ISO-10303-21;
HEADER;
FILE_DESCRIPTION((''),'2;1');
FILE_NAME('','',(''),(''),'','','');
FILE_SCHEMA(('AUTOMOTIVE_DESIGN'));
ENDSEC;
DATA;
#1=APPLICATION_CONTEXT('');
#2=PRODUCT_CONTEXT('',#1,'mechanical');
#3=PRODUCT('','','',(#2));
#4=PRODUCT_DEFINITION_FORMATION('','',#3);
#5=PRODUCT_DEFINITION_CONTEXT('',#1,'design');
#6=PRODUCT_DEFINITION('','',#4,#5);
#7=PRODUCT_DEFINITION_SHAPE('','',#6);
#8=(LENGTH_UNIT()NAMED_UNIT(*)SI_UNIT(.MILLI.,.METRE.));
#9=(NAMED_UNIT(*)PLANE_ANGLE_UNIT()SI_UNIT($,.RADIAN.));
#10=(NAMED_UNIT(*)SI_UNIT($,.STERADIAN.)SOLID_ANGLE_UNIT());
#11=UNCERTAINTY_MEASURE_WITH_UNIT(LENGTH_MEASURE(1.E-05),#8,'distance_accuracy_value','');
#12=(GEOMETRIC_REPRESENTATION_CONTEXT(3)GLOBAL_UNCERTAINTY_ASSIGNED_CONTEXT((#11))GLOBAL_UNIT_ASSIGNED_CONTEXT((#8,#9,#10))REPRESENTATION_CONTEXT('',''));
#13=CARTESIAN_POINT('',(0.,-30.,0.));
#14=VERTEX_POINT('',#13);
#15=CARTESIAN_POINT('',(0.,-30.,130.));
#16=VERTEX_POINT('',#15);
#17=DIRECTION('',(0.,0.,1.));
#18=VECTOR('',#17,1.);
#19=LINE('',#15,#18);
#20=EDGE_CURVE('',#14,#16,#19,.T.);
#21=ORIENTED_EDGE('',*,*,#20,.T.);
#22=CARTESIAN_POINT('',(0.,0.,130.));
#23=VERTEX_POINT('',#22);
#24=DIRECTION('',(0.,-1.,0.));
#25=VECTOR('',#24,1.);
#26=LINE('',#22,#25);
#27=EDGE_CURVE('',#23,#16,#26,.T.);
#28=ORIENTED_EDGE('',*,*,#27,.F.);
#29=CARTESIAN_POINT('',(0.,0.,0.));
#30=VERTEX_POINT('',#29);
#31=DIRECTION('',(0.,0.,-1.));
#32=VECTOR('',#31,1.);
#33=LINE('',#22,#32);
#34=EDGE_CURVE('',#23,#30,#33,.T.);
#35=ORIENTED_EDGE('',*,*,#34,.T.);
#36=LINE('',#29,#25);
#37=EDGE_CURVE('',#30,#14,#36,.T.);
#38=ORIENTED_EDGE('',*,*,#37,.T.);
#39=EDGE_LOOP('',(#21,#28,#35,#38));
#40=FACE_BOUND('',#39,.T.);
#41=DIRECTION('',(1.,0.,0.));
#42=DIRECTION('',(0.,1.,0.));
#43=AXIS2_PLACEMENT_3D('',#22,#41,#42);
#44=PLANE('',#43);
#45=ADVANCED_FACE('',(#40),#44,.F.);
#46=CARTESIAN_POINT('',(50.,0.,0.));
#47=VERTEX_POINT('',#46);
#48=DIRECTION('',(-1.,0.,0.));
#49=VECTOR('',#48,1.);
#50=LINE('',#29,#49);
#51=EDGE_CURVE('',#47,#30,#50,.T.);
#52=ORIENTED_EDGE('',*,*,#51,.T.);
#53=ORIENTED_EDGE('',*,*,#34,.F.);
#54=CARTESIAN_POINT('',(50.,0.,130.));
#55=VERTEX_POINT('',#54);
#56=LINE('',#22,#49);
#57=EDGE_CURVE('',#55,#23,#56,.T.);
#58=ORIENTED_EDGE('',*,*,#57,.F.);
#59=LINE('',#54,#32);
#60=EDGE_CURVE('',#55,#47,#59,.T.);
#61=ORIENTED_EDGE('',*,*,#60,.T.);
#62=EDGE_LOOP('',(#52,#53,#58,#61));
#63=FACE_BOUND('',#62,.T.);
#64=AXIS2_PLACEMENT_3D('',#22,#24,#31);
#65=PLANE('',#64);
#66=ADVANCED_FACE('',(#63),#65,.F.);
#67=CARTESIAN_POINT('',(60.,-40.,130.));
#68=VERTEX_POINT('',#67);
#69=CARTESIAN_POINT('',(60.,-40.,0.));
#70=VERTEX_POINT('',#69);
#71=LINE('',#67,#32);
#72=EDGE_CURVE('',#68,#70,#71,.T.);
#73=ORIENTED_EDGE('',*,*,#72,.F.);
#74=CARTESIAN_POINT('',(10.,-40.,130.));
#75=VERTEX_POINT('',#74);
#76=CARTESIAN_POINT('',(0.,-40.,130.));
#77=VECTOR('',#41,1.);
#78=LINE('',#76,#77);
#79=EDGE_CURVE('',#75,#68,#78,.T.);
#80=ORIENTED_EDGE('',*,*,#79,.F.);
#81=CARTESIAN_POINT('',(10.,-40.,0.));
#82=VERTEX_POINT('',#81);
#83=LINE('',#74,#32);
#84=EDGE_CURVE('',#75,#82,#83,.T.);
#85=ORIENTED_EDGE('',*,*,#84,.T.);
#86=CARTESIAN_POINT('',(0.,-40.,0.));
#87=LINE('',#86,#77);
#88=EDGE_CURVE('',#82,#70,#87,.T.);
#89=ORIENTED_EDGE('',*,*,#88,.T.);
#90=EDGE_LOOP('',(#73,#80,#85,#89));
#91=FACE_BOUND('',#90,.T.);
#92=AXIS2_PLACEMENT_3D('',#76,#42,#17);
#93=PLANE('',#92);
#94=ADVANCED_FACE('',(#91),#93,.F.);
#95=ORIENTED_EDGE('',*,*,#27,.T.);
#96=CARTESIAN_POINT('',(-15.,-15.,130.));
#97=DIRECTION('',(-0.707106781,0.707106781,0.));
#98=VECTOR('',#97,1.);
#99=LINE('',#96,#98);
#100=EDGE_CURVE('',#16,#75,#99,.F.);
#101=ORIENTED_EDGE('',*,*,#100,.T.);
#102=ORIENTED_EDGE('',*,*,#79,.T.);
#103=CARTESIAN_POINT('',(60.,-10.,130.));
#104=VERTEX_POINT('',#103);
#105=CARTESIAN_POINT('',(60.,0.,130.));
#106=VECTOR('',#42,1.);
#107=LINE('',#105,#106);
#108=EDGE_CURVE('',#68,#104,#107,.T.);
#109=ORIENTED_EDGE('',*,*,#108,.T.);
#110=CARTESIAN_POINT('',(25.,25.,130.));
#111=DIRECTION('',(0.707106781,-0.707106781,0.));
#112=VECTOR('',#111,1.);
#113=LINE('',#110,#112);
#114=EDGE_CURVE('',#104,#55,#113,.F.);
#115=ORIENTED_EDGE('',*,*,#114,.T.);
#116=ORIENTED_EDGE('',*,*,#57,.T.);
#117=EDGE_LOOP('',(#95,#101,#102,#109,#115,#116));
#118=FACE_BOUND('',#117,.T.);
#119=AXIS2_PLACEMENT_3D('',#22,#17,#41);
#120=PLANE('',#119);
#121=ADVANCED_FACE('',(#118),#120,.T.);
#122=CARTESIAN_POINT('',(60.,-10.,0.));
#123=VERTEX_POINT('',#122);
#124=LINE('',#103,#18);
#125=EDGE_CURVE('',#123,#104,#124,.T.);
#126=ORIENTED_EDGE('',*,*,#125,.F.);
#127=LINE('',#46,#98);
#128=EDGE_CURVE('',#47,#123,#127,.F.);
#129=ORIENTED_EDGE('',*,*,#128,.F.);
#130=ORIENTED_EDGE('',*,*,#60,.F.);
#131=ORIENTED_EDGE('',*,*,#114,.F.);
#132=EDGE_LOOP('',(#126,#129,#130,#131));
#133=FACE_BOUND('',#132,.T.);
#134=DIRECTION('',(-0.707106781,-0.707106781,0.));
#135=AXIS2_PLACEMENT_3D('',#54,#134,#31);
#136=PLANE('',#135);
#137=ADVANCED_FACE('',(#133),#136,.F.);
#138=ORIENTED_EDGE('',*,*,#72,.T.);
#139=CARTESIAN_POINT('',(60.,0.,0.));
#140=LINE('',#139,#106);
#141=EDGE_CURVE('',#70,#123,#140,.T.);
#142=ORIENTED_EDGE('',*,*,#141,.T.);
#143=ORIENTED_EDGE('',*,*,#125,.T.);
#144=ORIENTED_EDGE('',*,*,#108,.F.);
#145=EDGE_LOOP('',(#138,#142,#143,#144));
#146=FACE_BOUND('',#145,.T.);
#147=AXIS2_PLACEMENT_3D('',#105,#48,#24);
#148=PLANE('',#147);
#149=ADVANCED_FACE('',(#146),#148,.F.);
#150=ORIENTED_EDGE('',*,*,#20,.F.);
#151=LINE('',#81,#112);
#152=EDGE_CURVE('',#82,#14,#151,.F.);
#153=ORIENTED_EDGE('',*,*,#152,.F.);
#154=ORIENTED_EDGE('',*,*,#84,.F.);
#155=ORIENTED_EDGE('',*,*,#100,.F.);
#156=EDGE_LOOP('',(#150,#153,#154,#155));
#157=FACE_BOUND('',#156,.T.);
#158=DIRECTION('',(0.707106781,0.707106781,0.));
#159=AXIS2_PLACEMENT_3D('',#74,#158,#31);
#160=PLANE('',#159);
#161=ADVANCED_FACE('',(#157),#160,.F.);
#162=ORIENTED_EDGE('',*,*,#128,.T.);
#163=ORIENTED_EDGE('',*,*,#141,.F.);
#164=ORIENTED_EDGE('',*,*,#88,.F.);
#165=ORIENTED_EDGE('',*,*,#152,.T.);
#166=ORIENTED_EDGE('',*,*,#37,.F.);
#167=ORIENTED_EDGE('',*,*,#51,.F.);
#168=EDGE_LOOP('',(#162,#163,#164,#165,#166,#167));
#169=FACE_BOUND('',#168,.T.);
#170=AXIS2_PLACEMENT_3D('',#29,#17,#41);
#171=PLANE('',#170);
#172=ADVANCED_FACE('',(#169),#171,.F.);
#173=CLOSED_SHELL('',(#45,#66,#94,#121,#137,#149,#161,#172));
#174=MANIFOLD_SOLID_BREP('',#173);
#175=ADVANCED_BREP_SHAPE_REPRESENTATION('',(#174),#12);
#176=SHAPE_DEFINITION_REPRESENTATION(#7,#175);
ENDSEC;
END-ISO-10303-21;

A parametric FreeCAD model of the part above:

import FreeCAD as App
import Part
import Sketcher

V = App.Vector


def edges_at(feature, points):
    """Names of the edges that pass closest to the given points."""
    edges = feature.Shape.Edges
    near = lambda p: min(range(len(edges)), key=lambda i: edges[i].distToShape(Part.Vertex(*p))[0])
    return sorted({f"Edge{near(p) + 1}" for p in points})


def add_polygon(sketch, points):
    """Adds a closed chain of lines whose ends are joined by coincident constraints."""
    first, n = sketch.GeometryCount, len(points)
    for a, b in zip(points, points[1:] + points[:1]):
        sketch.addGeometry(Part.LineSegment(App.Vector(*a, 0), App.Vector(*b, 0)), False)
    for i in range(n):
        sketch.addConstraint(Sketcher.Constraint("Coincident", first + i, 2, first + (i + 1) % n, 1))

doc = App.newDocument("Part")
params = doc.addObject("Spreadsheet::Sheet", "Params")
for row, (alias, value) in enumerate([
    ("sketch1_width", "60 mm"),
    ("sketch1_height", "40 mm"),
    ("pad1_length", "130 mm"),
    ("chamfer_size", "10 mm"),
], start=1):
    params.set(f"A{row}", alias)
    params.set(f"B{row}", "=" + value)
    params.setAlias(f"B{row}", alias)

body = doc.addObject("PartDesign::Body", "Body")

# Sketch on XY plane
sketch1 = body.newObject("Sketcher::SketchObject", "Sketch")
sketch1.AttachmentSupport = (doc.getObject("XY_Plane"), [""])
sketch1.MapMode = "FlatFace"
add_polygon(sketch1, [(0, 0), (0, -40), (60, -40), (60, 0)])  # lines 0-3
sketch1.addConstraint([
    Sketcher.Constraint("Vertical", 0),
    Sketcher.Constraint("Horizontal", 1),
    Sketcher.Constraint("Vertical", 2),
    Sketcher.Constraint("Horizontal", 3),
    Sketcher.Constraint("Coincident", 3, 2, -1, 1),
    Sketcher.Constraint("DistanceX", 1, 1, 1, 2, 60.0),
    Sketcher.Constraint("DistanceY", 0, 2, 0, 1, 40.0),
])
sketch1.setExpression("Constraints[9]", "Params.sketch1_width")
sketch1.setExpression("Constraints[10]", "Params.sketch1_height")
pad1 = body.newObject("PartDesign::Pad", "Pad")
pad1.Profile = sketch1
pad1.setExpression("Length", "Params.pad1_length")
doc.recompute()

chamfer = body.newObject("PartDesign::Chamfer", "Chamfer")
chamfer.Base = (pad1, edges_at(pad1, [(60, 0, 65), (0, -40, 65)]))
chamfer.setExpression("Size", "Params.chamfer_size")

doc.recompute()
